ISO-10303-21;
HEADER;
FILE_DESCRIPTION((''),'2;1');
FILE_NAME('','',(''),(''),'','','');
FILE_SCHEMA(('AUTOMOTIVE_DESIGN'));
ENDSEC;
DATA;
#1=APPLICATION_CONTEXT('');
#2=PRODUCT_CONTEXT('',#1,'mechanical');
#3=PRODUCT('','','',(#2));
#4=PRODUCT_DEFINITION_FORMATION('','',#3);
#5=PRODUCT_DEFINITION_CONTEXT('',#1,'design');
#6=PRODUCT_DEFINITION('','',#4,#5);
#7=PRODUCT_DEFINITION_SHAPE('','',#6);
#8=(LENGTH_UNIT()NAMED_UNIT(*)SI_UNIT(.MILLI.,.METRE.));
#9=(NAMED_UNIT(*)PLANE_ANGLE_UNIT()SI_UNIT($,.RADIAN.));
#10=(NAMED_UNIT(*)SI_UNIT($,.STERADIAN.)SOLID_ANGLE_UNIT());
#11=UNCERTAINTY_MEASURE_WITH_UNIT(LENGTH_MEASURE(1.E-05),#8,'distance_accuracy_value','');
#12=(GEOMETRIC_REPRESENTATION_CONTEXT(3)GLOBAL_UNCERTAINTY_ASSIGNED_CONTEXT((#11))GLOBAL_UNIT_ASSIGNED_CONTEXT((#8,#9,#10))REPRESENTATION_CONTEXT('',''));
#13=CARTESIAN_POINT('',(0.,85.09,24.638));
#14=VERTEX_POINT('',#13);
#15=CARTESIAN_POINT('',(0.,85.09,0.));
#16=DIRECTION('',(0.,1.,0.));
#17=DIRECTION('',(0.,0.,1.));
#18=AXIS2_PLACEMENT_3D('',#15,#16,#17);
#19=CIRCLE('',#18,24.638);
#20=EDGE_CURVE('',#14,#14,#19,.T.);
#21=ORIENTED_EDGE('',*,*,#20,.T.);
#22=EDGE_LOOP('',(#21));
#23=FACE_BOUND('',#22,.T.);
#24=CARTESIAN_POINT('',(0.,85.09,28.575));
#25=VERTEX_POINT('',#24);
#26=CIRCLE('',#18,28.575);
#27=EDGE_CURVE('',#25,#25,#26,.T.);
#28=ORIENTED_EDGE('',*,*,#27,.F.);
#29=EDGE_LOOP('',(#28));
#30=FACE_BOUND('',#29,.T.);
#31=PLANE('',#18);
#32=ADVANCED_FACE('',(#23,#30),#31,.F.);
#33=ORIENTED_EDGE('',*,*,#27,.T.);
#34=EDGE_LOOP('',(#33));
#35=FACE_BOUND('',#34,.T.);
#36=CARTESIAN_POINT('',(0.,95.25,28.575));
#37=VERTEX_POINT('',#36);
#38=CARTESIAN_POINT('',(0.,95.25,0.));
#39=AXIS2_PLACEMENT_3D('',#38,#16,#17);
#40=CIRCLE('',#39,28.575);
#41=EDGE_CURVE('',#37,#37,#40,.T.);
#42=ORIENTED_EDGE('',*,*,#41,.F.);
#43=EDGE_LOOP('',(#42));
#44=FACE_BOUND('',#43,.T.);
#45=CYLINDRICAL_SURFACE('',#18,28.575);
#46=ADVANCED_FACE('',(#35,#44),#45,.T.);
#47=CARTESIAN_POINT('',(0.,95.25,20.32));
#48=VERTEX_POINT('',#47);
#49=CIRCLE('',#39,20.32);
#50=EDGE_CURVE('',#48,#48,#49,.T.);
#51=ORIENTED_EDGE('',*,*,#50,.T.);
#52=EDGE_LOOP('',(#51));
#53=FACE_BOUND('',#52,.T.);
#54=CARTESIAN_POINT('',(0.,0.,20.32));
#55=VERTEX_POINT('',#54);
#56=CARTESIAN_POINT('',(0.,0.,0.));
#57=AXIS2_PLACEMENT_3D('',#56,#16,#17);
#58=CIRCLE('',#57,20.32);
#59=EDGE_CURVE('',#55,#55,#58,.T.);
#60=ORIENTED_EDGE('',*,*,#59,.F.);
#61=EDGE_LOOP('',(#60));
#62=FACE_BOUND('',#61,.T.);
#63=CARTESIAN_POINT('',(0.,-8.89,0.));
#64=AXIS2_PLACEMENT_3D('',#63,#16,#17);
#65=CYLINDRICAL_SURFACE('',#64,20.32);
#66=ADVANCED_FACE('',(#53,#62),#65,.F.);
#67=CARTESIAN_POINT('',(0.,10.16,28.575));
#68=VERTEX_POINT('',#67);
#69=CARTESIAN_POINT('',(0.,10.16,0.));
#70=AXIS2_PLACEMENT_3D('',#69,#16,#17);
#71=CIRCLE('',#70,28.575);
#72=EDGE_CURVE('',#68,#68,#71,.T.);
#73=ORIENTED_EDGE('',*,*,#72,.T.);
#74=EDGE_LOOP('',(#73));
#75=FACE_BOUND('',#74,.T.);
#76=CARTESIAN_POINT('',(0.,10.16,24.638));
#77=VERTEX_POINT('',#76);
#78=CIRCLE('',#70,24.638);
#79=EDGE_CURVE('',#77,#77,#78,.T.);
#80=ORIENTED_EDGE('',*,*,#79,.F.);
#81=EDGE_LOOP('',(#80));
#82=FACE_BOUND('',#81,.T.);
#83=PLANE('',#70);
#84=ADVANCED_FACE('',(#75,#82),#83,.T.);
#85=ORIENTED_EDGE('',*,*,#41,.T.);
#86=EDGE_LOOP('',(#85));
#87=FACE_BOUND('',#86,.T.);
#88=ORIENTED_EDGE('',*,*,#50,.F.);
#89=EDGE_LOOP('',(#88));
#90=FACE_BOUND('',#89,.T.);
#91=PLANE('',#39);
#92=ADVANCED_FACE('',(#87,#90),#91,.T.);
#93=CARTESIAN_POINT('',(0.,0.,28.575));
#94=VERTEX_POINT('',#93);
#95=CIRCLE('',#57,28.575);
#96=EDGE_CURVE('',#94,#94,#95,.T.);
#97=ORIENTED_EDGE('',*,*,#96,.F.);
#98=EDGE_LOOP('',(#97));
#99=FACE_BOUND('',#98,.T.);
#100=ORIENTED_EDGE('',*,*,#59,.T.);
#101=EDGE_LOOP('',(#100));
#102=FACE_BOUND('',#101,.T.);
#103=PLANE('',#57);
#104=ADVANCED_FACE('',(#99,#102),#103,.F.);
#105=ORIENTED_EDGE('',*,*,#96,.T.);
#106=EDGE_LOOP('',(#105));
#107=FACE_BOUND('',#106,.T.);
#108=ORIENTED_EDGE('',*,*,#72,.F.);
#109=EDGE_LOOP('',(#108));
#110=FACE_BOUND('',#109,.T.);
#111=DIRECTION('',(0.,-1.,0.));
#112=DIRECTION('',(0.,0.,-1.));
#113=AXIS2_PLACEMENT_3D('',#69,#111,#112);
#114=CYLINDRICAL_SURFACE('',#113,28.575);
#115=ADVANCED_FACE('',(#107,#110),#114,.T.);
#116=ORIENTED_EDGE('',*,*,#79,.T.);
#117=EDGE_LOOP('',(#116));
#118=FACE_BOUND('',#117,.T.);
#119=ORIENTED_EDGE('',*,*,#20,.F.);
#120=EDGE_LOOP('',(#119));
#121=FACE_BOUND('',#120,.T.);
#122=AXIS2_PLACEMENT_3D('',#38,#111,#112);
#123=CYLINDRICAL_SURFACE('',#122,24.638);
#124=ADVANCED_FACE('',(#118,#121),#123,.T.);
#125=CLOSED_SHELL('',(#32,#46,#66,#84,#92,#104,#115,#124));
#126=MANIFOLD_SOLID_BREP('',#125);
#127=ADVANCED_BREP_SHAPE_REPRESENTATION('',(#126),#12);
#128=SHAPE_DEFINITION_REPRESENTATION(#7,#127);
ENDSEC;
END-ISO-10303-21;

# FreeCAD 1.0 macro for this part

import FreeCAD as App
import Part
import Sketcher
from FreeCAD import Vector
Q = App.Units.Quantity

doc = App.newDocument("Part")
params = doc.addObject("Spreadsheet::Sheet", "Params")
for row, (alias, value) in enumerate([
    ("sketch1_diameter", "2.25 in"),
    ("pad1_length", "0.4 in"),
    ("sketch2_diameter", "1.94 in"),
    ("pad2_length", "3.35 in"),
    ("sketch3_diameter", "2.25 in"),
    ("pad3_length", "0.4 in"),
    ("sketch4_diameter", "1.6 in"),
    ("pocket1_length", "4.1 in"),
], start=1):
    params.set(f"A{row}", alias)
    params.set(f"B{row}", "=" + value)
    params.setAlias(f"B{row}", alias)

body = doc.addObject("PartDesign::Body", "Body")

sketch1 = body.newObject("Sketcher::SketchObject", "Sketch")
sketch1.AttachmentSupport = (doc.getObject("XZ_Plane"), [""])
sketch1.MapMode = "FlatFace"
sketch1.addGeometry(Part.Circle(Vector(0, 0, 0), Vector(0, 0, 1), 28.575), False)
sketch1.addConstraint(Sketcher.Constraint("Coincident", 0, 3, -1, 1))
sketch1.addConstraint(Sketcher.Constraint("Diameter", 0, Q("2.25 in")))
sketch1.setExpression("Constraints[1]", "Params.sketch1_diameter")
pad1 = body.newObject("PartDesign::Pad", "Pad")
pad1.Profile = sketch1
pad1.setExpression("Length", "Params.pad1_length")
pad1.Reversed = True

sketch2 = body.newObject("Sketcher::SketchObject", "Sketch001")
sketch2.AttachmentSupport = (doc.getObject("XZ_Plane"), [""])
sketch2.MapMode = "FlatFace"
sketch2.AttachmentOffset = App.Placement(Vector(0, 0, -0.4 * 25.4), App.Rotation())
sketch2.addGeometry(Part.Circle(Vector(0, 0, 0), Vector(0, 0, 1), 24.638), False)
sketch2.addConstraint(Sketcher.Constraint("Coincident", 0, 3, -1, 1))
sketch2.addConstraint(Sketcher.Constraint("Diameter", 0, Q("1.94 in")))
sketch2.setExpression("Constraints[1]", "Params.sketch2_diameter")
pad2 = body.newObject("PartDesign::Pad", "Pad001")
pad2.Profile = sketch2
pad2.setExpression("Length", "Params.pad2_length")
pad2.Reversed = True

sketch3 = body.newObject("Sketcher::SketchObject", "Sketch002")
sketch3.AttachmentSupport = (doc.getObject("XZ_Plane"), [""])
sketch3.MapMode = "FlatFace"
sketch3.AttachmentOffset = App.Placement(Vector(0, 0, -3.35 * 25.4), App.Rotation())
sketch3.addGeometry(Part.Circle(Vector(0, 0, 0), Vector(0, 0, 1), 28.575), False)
sketch3.addConstraint(Sketcher.Constraint("Coincident", 0, 3, -1, 1))
sketch3.addConstraint(Sketcher.Constraint("Diameter", 0, Q("2.25 in")))
sketch3.setExpression("Constraints[1]", "Params.sketch3_diameter")
pad3 = body.newObject("PartDesign::Pad", "Pad002")
pad3.Profile = sketch3
pad3.setExpression("Length", "Params.pad3_length")
pad3.Reversed = True

sketch4 = body.newObject("Sketcher::SketchObject", "Sketch003")
sketch4.AttachmentSupport = (doc.getObject("XZ_Plane"), [""])
sketch4.MapMode = "FlatFace"
sketch4.AttachmentOffset = App.Placement(Vector(0, 0, -3.75 * 25.4), App.Rotation())
sketch4.addGeometry(Part.Circle(Vector(0, 0, 0), Vector(0, 0, 1), 20.32), False)
sketch4.addConstraint(Sketcher.Constraint("Coincident", 0, 3, -1, 1))
sketch4.addConstraint(Sketcher.Constraint("Diameter", 0, Q("1.6 in")))
sketch4.setExpression("Constraints[1]", "Params.sketch4_diameter")
pocket1 = body.newObject("PartDesign::Pocket", "Pocket")
pocket1.Profile = sketch4
pocket1.setExpression("Length", "Params.pocket1_length")
pocket1.Reversed = True

doc.recompute()
